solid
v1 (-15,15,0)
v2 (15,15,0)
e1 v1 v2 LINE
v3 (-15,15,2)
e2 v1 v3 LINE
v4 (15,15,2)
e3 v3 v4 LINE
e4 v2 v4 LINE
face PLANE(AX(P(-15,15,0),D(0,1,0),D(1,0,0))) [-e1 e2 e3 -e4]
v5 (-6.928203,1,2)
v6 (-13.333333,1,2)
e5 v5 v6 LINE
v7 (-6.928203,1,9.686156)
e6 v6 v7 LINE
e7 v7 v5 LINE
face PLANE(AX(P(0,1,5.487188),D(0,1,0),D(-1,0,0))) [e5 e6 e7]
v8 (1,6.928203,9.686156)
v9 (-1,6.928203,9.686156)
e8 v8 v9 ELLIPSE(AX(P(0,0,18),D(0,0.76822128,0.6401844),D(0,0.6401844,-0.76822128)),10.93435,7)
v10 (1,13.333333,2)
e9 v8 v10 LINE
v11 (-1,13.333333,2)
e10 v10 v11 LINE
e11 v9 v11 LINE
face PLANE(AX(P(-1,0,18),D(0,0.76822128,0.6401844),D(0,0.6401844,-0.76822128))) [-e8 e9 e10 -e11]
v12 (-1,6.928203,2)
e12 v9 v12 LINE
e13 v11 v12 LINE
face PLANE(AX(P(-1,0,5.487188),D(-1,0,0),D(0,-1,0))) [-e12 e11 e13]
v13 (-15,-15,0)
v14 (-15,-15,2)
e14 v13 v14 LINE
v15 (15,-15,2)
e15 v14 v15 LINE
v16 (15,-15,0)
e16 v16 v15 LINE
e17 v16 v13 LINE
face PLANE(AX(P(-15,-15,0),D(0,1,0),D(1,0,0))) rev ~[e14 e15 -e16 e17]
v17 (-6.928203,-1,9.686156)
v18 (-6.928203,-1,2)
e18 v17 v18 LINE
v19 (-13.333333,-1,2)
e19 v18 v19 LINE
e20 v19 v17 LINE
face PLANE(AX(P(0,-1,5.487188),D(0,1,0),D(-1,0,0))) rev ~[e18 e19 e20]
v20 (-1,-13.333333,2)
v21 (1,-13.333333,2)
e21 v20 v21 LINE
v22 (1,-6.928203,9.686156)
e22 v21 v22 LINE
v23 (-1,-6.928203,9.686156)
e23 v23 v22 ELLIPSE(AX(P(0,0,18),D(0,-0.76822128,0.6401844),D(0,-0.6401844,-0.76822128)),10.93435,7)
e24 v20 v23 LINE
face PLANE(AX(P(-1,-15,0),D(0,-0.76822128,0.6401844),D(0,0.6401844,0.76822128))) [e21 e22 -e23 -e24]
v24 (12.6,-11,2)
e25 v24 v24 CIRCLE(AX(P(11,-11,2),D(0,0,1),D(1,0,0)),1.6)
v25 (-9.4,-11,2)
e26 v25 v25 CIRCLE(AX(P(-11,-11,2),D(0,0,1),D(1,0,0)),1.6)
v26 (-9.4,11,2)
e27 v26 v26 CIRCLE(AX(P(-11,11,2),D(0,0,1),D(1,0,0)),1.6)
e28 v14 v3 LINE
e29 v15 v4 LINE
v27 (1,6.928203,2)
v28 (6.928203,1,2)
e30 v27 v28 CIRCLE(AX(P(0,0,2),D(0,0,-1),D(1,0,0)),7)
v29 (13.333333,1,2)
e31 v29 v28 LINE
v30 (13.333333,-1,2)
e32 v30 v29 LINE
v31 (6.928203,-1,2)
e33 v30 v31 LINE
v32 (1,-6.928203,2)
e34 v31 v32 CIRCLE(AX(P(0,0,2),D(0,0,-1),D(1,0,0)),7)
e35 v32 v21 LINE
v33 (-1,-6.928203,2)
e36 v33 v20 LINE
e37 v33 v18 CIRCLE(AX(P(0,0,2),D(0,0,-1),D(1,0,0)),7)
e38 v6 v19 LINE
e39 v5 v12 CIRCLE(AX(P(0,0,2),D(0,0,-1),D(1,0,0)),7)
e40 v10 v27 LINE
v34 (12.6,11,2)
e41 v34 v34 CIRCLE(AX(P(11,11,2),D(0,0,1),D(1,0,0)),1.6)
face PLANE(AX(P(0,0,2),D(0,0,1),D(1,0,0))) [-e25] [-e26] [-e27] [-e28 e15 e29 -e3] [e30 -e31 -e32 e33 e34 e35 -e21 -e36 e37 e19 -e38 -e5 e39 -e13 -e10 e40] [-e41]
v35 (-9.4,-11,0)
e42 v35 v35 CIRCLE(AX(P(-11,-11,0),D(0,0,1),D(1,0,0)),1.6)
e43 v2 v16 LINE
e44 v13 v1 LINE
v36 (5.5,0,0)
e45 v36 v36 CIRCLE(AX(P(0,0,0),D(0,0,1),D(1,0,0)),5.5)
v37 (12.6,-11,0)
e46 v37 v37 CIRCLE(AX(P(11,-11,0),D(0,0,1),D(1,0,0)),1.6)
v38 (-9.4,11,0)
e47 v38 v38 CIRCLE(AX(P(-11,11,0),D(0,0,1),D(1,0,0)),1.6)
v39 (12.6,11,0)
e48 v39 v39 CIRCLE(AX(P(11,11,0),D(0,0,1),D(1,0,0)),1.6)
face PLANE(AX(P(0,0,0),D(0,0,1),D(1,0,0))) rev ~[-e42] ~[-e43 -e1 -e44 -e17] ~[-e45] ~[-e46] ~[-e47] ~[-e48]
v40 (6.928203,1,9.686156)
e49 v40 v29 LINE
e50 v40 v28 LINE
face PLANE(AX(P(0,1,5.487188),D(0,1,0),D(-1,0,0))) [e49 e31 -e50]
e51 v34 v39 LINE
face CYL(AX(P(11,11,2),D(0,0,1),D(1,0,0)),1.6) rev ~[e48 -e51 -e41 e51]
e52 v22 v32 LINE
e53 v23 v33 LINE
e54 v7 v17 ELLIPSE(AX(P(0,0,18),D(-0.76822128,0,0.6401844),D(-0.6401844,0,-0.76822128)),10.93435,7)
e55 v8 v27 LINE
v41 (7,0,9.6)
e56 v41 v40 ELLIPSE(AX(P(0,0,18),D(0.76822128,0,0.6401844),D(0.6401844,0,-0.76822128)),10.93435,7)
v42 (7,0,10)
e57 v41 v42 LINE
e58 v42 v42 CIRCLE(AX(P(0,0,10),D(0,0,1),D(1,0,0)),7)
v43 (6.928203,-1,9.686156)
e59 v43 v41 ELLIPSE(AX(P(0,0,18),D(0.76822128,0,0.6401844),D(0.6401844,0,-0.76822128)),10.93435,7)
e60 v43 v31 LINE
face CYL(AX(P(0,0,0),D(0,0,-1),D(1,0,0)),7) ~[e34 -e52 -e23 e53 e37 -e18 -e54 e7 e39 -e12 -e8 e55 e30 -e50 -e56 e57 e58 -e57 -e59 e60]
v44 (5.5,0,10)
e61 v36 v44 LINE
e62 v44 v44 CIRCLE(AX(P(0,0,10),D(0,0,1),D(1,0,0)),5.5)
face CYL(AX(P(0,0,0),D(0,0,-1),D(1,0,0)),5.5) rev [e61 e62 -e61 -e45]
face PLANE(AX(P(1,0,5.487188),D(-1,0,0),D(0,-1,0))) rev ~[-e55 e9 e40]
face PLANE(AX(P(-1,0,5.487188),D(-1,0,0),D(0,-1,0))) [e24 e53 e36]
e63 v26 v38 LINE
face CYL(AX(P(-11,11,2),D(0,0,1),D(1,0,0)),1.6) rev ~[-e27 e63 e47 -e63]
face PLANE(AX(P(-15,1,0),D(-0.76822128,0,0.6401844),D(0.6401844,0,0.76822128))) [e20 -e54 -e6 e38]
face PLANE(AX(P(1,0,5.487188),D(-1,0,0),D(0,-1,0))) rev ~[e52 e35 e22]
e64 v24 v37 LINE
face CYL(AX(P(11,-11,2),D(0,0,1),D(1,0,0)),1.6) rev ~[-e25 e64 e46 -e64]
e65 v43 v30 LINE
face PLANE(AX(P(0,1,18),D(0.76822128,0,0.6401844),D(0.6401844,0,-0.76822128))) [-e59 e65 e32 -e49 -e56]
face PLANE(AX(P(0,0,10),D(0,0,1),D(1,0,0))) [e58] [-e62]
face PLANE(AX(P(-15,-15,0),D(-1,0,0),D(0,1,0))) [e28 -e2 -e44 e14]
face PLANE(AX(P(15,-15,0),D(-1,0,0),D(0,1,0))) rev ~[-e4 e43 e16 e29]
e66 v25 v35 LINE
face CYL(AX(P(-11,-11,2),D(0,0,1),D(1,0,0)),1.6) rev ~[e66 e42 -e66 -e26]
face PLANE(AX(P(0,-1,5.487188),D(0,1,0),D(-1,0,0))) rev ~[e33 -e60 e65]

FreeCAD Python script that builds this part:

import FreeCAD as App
import Part
import Sketcher


def add_polygon(sketch, points):
    """Adds a closed chain of lines whose ends are joined by coincident constraints."""
    first, n = sketch.GeometryCount, len(points)
    for a, b in zip(points, points[1:] + points[:1]):
        sketch.addGeometry(Part.LineSegment(App.Vector(*a, 0), App.Vector(*b, 0)), False)
    for i in range(n):
        sketch.addConstraint(Sketcher.Constraint("Coincident", first + i, 2, first + (i + 1) % n, 1))

doc = App.newDocument("Part")
params = doc.addObject("Spreadsheet::Sheet", "Params")
for row, (alias, value) in enumerate([
    ("sketch1_diameter", "11 mm"),
    ("pad1_length", "10 mm"),
    ("sketch2_width", "60 mm"),
    ("pad2_length", "60 mm"),
    ("sketch3_width", "30 mm"),
    ("pad3_length", "2 mm"),
    ("sketch4_width", "30 mm"),
    ("pad4_length", "2 mm"),
    ("sketch5_diameter", "14 mm"),
    ("pad5_length", "10 mm"),
    ("sketch6_diameter", "11 mm"),
    ("sketch7_width", "30 mm"),
    ("pad6_length", "2 mm"),
    ("sketch8_diameter", "3.2 mm"),
], start=1):
    params.set(f"A{row}", alias)
    params.set(f"B{row}", "=" + value)
    params.setAlias(f"B{row}", alias)

body = doc.addObject("PartDesign::Body", "Body")

# Sketch on XY plane
sketch1 = body.newObject("Sketcher::SketchObject", "Sketch")
sketch1.AttachmentSupport = (doc.getObject("XY_Plane"), [""])
sketch1.MapMode = "FlatFace"
sketch1.addGeometry(Part.Circle(App.Vector(0, 0, 0), App.Vector(0, 0, 1), 6), False)
sketch1.addConstraint(Sketcher.Constraint("Coincident", 0, 3, -1, 1))
sketch1.addConstraint(Sketcher.Constraint("Diameter", 0, 11.0))
sketch1.setExpression("Constraints[1]", "Params.sketch1_diameter")
pad1 = body.newObject("PartDesign::Pad", "Pad")
pad1.Profile = sketch1
pad1.setExpression("Length", "Params.pad1_length")
body2 = doc.addObject("PartDesign::Body", "Body001")

# Sketch on XY plane
sketch2 = body2.newObject("Sketcher::SketchObject", "Sketch001")
sketch2.AttachmentSupport = (doc.getObject("XY_Plane001"), [""])
sketch2.MapMode = "FlatFace"
sketch2.AttachmentOffset = App.Placement(App.Vector(0, 0, 10), App.Rotation())
add_polygon(sketch2, [(-30, 30), (-30, -30), (30, -30), (30, 30)])  # lines 0-3
sketch2.addConstraint(Sketcher.Constraint("Vertical", 0))
sketch2.addConstraint(Sketcher.Constraint("Horizontal", 1))
sketch2.addConstraint(Sketcher.Constraint("Vertical", 2))
sketch2.addConstraint(Sketcher.Constraint("Horizontal", 3))
sketch2.addConstraint(Sketcher.Constraint("Symmetric", 0, 2, 2, 2, -1, 1))
sketch2.addConstraint(Sketcher.Constraint("Equal", 3, 0))
sketch2.addConstraint(Sketcher.Constraint("DistanceX", 1, 1, 1, 2, 60.0))
sketch2.setExpression("Constraints[10]", "Params.sketch2_width")
pad2 = body2.newObject("PartDesign::Pad", "Pad001")
pad2.Profile = sketch2
pad2.setExpression("Length", "Params.pad2_length")
body3 = doc.addObject("PartDesign::Body", "Body002")

# Sketch on XZ plane
sketch3 = body3.newObject("Sketcher::SketchObject", "Sketch002")
sketch3.AttachmentSupport = (doc.getObject("XZ_Plane002"), [""])
sketch3.MapMode = "FlatFace"
sketch3.AttachmentOffset = App.Placement(App.Vector(0, 0, -1), App.Rotation())
add_polygon(sketch3, [(0, 18), (-15, 0), (15, 0)])  # lines 0-2
sketch3.addConstraint(Sketcher.Constraint("Horizontal", 1))
sketch3.addConstraint(Sketcher.Constraint("Symmetric", 0, 2, 1, 2, -1, 1))
sketch3.addConstraint(Sketcher.Constraint("PointOnObject", 2, 2, -2))
sketch3.addConstraint(Sketcher.Constraint("DistanceX", 1, 1, 1, 2, 30.0))
sketch3.addConstraint(Sketcher.Constraint("DistanceY", -1, 1, 2, 2, 18.0))
sketch3.setExpression("Constraints[6]", "Params.sketch3_width")
pad3 = body3.newObject("PartDesign::Pad", "Pad002")
pad3.Profile = sketch3
pad3.setExpression("Length", "Params.pad3_length")
body4 = doc.addObject("PartDesign::Body", "Body003")

# Sketch on YZ plane
sketch4 = body4.newObject("Sketcher::SketchObject", "Sketch003")
sketch4.AttachmentSupport = (doc.getObject("YZ_Plane003"), [""])
sketch4.MapMode = "FlatFace"
sketch4.AttachmentOffset = App.Placement(App.Vector(0, 0, -1), App.Rotation())
add_polygon(sketch4, [(0, 18), (-15, 0), (15, 0)])  # lines 0-2
sketch4.addConstraint(Sketcher.Constraint("Horizontal", 1))
sketch4.addConstraint(Sketcher.Constraint("Symmetric", 0, 2, 1, 2, -1, 1))
sketch4.addConstraint(Sketcher.Constraint("PointOnObject", 2, 2, -2))
sketch4.addConstraint(Sketcher.Constraint("DistanceX", 1, 1, 1, 2, 30.0))
sketch4.addConstraint(Sketcher.Constraint("DistanceY", -1, 1, 2, 2, 18.0))
sketch4.setExpression("Constraints[6]", "Params.sketch4_width")
pad4 = body4.newObject("PartDesign::Pad", "Pad003")
pad4.Profile = sketch4
pad4.setExpression("Length", "Params.pad4_length")
body5 = doc.addObject("PartDesign::Body", "Body004")

# Sketch on XY plane
sketch5 = body5.newObject("Sketcher::SketchObject", "Sketch004")
sketch5.AttachmentSupport = (doc.getObject("XY_Plane004"), [""])
sketch5.MapMode = "FlatFace"
sketch5.addGeometry(Part.Circle(App.Vector(0, 0, 0), App.Vector(0, 0, 1), 7), False)
sketch5.addConstraint(Sketcher.Constraint("Coincident", 0, 3, -1, 1))
sketch5.addConstraint(Sketcher.Constraint("Diameter", 0, 14.0))
sketch5.setExpression("Constraints[1]", "Params.sketch5_diameter")
pad5 = body5.newObject("PartDesign::Pad", "Pad004")
pad5.Profile = sketch5
pad5.setExpression("Length", "Params.pad5_length")

# Sketch on XY plane
sketch6 = body5.newObject("Sketcher::SketchObject", "Sketch005")
sketch6.AttachmentSupport = (doc.getObject("XY_Plane004"), [""])
sketch6.MapMode = "FlatFace"
sketch6.AttachmentOffset = App.Placement(App.Vector(0, 0, 10), App.Rotation())
sketch6.addGeometry(Part.Circle(App.Vector(0, 0, 0), App.Vector(0, 0, 1), 6), False)
sketch6.addConstraint(Sketcher.Constraint("Coincident", 0, 3, -1, 1))
sketch6.addConstraint(Sketcher.Constraint("Diameter", 0, 11.0))
sketch6.setExpression("Constraints[1]", "Params.sketch6_diameter")
pocket1 = body5.newObject("PartDesign::Pocket", "Pocket")
pocket1.Profile = sketch6
pocket1.Type = "ThroughAll"
body6 = doc.addObject("PartDesign::Body", "Body005")

# Sketch on XY plane
sketch7 = body6.newObject("Sketcher::SketchObject", "Sketch006")
sketch7.AttachmentSupport = (doc.getObject("XY_Plane005"), [""])
sketch7.MapMode = "FlatFace"
add_polygon(sketch7, [(-15, 15), (-15, -15), (15, -15), (15, 15)])  # lines 0-3
sketch7.addConstraint(Sketcher.Constraint("Vertical", 0))
sketch7.addConstraint(Sketcher.Constraint("Horizontal", 1))
sketch7.addConstraint(Sketcher.Constraint("Vertical", 2))
sketch7.addConstraint(Sketcher.Constraint("Horizontal", 3))
sketch7.addConstraint(Sketcher.Constraint("Symmetric", 0, 2, 2, 2, -1, 1))
sketch7.addConstraint(Sketcher.Constraint("Equal", 3, 0))
sketch7.addConstraint(Sketcher.Constraint("DistanceX", 1, 1, 1, 2, 30.0))
sketch7.setExpression("Constraints[10]", "Params.sketch7_width")
pad6 = body6.newObject("PartDesign::Pad", "Pad005")
pad6.Profile = sketch7
pad6.setExpression("Length", "Params.pad6_length")

# Sketch on XY plane
sketch8 = body6.newObject("Sketcher::SketchObject", "Sketch007")
sketch8.AttachmentSupport = (doc.getObject("XY_Plane005"), [""])
sketch8.MapMode = "FlatFace"
sketch8.AttachmentOffset = App.Placement(App.Vector(0, 0, 2), App.Rotation())
sketch8.addGeometry(Part.Circle(App.Vector(-11, -11, 0), App.Vector(0, 0, 1), 1.6), False)
sketch8.addGeometry(Part.Circle(App.Vector(11, 11, 0), App.Vector(0, 0, 1), 1.6), False)
sketch8.addGeometry(Part.Circle(App.Vector(11, -11, 0), App.Vector(0, 0, 1), 1.6), False)
sketch8.addGeometry(Part.Circle(App.Vector(-11, 11, 0), App.Vector(0, 0, 1), 1.6), False)
sketch8.addConstraint(Sketcher.Constraint("Equal", 0, 1))
sketch8.addConstraint(Sketcher.Constraint("Equal", 1, 2))
sketch8.addConstraint(Sketcher.Constraint("Equal", 2, 3))
sketch8.addConstraint(Sketcher.Constraint("Symmetric", 0, 3, 1, 3, -1, 1))
sketch8.addConstraint(Sketcher.Constraint("Symmetric", 2, 3, 3, 3, -1, 1))
sketch8.addConstraint(Sketcher.Constraint("Symmetric", 0, 3, 2, 3, -2))
sketch8.addConstraint(Sketcher.Constraint("Diameter", 0, 3.2))
sketch8.addConstraint(Sketcher.Constraint("DistanceX", 0, 3, -1, 1, 11.0))
sketch8.addConstraint(Sketcher.Constraint("DistanceY", 0, 3, -1, 1, 11.0))
sketch8.setExpression("Constraints[6]", "Params.sketch8_diameter")
pocket2 = body6.newObject("PartDesign::Pocket", "Pocket001")
pocket2.Profile = sketch8
pocket2.Type = "ThroughAll"
doc.recompute()

boolean = body6.newObject("PartDesign::Boolean", "Boolean")
boolean.Type = "Fuse"
boolean.addObjects([body3])
doc.recompute()

boolean2 = body6.newObject("PartDesign::Boolean", "Boolean001")
boolean2.Type = "Fuse"
boolean2.addObjects([body4])
doc.recompute()

boolean3 = body6.newObject("PartDesign::Boolean", "Boolean002")
boolean3.Type = "Fuse"
boolean3.addObjects([body5])
doc.recompute()

boolean4 = body6.newObject("PartDesign::Boolean", "Boolean003")
boolean4.Type = "Cut"
boolean4.addObjects([body2])
doc.recompute()

boolean5 = body6.newObject("PartDesign::Boolean", "Boolean004")
boolean5.Type = "Cut"
boolean5.addObjects([body])

doc.recompute()
